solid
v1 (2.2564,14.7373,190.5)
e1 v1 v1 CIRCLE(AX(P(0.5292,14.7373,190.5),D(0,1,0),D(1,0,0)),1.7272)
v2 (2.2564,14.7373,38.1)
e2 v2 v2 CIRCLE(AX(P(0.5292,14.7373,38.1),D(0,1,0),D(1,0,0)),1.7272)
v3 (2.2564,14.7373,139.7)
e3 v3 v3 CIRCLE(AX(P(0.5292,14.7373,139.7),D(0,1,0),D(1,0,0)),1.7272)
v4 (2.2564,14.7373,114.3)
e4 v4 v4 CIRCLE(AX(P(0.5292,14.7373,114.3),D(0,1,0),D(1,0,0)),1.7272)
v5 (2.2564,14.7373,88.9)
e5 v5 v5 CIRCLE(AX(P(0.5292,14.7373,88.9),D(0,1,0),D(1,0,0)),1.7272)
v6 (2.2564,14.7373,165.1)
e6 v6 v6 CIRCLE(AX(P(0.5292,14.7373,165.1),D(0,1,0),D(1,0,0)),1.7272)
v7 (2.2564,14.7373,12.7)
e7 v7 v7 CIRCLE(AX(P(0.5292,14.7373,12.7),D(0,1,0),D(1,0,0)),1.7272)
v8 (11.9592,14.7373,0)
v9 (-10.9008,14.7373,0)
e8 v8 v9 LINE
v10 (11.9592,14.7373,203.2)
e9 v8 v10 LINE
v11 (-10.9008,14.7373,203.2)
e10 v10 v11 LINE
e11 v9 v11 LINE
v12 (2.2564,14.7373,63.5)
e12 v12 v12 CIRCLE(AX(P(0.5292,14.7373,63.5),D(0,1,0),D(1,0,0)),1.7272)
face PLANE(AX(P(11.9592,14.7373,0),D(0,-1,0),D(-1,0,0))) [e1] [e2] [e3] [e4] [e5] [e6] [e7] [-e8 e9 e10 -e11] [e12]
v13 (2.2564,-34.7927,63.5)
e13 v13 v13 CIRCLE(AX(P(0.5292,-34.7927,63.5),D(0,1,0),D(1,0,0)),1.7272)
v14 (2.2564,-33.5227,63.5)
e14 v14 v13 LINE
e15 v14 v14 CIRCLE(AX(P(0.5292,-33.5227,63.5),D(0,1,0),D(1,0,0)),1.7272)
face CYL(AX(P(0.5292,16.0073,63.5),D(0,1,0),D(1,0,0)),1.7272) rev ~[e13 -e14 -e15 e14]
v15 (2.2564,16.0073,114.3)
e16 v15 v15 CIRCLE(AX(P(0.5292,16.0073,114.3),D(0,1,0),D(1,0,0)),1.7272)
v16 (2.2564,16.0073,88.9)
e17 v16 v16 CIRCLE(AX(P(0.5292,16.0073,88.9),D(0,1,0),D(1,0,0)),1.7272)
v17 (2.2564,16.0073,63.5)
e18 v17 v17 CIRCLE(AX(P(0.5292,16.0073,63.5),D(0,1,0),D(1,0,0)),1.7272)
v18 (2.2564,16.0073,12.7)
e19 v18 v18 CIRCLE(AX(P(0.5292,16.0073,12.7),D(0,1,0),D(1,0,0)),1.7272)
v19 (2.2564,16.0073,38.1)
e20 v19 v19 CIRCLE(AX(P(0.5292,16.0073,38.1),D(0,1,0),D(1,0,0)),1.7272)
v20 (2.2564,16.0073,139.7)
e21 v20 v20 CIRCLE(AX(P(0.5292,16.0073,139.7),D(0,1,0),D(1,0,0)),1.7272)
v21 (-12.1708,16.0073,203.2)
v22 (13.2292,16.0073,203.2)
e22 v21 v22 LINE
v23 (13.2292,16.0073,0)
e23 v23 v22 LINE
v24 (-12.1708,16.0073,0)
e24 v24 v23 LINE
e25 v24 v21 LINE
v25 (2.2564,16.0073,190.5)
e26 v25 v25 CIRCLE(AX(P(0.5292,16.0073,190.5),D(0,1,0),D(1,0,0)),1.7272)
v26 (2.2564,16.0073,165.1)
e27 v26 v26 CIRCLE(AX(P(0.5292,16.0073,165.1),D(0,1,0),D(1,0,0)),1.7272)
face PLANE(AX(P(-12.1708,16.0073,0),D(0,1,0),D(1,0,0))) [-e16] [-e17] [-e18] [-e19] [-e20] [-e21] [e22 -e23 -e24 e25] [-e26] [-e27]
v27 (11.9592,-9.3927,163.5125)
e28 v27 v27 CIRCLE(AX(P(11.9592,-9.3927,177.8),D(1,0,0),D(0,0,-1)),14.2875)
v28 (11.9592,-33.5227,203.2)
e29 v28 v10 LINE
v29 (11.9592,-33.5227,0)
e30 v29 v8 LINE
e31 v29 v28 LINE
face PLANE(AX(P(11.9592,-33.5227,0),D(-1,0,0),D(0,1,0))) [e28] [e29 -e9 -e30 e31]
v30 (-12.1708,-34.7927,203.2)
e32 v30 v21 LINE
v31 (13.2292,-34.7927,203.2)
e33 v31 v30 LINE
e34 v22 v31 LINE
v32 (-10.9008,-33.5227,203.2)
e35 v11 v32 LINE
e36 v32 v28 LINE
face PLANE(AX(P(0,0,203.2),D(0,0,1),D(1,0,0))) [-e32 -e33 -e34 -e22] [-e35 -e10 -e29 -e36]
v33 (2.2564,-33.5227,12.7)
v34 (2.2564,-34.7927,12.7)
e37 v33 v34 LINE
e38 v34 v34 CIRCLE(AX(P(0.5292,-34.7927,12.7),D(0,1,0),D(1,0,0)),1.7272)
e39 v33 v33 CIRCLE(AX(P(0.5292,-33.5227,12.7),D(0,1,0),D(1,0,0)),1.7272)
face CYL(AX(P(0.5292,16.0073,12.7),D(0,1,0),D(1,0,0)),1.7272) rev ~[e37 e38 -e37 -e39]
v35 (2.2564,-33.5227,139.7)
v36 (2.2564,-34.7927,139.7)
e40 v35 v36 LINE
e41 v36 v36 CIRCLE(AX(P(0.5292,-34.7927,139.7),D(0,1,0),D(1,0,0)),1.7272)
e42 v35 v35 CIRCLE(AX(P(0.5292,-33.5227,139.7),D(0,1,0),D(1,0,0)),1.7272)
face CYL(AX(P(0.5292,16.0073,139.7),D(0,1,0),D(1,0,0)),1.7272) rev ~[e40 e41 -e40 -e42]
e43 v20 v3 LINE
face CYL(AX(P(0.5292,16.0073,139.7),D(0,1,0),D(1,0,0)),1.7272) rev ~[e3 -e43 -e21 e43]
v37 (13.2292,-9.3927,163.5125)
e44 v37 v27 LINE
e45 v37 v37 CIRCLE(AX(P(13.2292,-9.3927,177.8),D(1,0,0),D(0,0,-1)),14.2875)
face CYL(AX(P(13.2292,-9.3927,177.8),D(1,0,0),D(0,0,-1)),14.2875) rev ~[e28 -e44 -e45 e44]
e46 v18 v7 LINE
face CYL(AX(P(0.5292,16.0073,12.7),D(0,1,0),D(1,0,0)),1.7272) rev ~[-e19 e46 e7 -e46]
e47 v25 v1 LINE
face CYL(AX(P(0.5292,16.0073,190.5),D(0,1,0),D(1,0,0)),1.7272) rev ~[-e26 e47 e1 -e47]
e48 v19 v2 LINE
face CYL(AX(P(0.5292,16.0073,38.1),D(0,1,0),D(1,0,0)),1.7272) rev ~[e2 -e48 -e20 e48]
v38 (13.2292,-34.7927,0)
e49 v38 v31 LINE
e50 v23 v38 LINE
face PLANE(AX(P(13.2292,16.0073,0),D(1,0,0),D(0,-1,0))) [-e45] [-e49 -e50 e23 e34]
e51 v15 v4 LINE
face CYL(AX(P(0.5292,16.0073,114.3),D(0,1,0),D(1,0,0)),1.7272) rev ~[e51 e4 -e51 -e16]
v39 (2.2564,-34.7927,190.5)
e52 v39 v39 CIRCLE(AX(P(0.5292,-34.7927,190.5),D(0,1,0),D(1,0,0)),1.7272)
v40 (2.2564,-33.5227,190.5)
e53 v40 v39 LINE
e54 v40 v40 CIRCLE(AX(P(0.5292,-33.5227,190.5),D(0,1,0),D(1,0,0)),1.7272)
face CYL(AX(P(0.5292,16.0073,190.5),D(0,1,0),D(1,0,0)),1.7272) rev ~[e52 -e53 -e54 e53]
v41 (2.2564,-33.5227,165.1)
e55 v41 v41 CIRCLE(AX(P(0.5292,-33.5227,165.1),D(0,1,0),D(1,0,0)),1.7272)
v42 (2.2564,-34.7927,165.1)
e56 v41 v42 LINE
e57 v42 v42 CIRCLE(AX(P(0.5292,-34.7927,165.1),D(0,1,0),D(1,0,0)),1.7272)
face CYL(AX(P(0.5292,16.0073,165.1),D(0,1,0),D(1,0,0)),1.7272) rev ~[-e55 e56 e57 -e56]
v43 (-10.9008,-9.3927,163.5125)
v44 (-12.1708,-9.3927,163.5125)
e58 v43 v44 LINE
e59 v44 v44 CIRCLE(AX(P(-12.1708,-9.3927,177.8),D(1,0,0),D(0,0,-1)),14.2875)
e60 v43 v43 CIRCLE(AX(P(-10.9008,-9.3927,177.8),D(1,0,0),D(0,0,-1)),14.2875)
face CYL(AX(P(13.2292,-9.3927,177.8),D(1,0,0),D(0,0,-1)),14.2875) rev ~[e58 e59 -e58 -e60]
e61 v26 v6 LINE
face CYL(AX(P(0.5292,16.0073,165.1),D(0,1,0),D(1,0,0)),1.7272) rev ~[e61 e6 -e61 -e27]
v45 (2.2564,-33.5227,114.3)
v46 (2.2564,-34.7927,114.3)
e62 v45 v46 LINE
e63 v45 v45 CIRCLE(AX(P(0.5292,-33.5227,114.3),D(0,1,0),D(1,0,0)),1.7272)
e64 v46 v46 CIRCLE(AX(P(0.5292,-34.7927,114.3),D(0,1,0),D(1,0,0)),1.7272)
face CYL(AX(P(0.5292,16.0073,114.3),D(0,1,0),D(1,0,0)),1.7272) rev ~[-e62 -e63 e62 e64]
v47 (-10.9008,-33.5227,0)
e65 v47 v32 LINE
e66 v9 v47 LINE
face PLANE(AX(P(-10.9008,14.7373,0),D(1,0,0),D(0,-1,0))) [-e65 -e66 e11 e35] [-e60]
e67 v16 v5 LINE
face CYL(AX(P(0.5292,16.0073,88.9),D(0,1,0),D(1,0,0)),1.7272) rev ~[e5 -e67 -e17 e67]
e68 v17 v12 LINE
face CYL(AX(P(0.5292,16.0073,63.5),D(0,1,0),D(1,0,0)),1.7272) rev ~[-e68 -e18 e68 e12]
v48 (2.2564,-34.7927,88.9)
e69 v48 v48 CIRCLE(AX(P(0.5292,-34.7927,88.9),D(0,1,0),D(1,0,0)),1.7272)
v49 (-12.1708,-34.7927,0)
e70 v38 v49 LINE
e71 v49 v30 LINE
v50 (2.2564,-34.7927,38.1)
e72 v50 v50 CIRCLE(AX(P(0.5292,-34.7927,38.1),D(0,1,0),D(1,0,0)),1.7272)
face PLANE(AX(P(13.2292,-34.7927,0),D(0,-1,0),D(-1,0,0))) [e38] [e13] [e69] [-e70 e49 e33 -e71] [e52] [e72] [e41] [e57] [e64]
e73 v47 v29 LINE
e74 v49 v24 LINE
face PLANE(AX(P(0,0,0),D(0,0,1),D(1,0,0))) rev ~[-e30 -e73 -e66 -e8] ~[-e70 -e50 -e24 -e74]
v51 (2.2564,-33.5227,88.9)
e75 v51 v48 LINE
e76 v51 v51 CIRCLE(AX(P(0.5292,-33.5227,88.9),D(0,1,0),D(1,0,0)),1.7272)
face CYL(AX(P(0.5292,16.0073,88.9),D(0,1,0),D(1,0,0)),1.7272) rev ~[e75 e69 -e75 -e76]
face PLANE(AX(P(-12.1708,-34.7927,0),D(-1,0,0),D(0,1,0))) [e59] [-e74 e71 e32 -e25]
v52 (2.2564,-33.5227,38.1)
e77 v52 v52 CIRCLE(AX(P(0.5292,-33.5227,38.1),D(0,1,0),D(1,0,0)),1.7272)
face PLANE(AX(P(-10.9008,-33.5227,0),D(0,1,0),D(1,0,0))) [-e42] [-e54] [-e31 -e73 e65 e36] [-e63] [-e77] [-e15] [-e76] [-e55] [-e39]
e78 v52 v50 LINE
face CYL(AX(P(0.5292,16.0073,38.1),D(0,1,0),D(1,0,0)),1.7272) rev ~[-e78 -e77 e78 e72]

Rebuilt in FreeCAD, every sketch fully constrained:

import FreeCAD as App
import Part
import Sketcher

V = App.Vector
Q = App.Units.Quantity

doc = App.newDocument("Part")
body = doc.addObject("PartDesign::Body", "Body")

# Sketch on XY plane
sketch1 = body.newObject("Sketcher::SketchObject", "Sketch")
sketch1.AttachmentSupport = (doc.getObject("XY_Plane"), [""])
sketch1.MapMode = "FlatFace"
sketch1.addGeometry([
    Part.LineSegment(V(13, 16, 0), V(-12, 16, 0)),  # 0
    Part.LineSegment(V(-12, 16, 0), V(-12, -35, 0)),  # 1
    Part.LineSegment(V(-12, -35, 0), V(13, -35, 0)),  # 2
    Part.LineSegment(V(13, -35, 0), V(13, 16, 0)),  # 3
    Part.LineSegment(V(-11, 15, 0), V(12, 15, 0)),  # 4
    Part.LineSegment(V(12, 15, 0), V(12, -34, 0)),  # 5
    Part.LineSegment(V(12, -34, 0), V(-11, -34, 0)),  # 6
    Part.LineSegment(V(-11, -34, 0), V(-11, 15, 0)),  # 7
], False)
sketch1.addConstraint([
    Sketcher.Constraint("Coincident", 0, 2, 1, 1),
    Sketcher.Constraint("Coincident", 1, 2, 2, 1),
    Sketcher.Constraint("Coincident", 2, 2, 3, 1),
    Sketcher.Constraint("Coincident", 3, 2, 0, 1),
    Sketcher.Constraint("Coincident", 4, 2, 5, 1),
    Sketcher.Constraint("Coincident", 5, 2, 6, 1),
    Sketcher.Constraint("Coincident", 6, 2, 7, 1),
    Sketcher.Constraint("Coincident", 7, 2, 4, 1),
    Sketcher.Constraint("Horizontal", 0),
    Sketcher.Constraint("Vertical", 1),
    Sketcher.Constraint("Horizontal", 2),
    Sketcher.Constraint("Vertical", 3),
    Sketcher.Constraint("Horizontal", 4),
    Sketcher.Constraint("Vertical", 5),
    Sketcher.Constraint("Horizontal", 6),
    Sketcher.Constraint("Vertical", 7),
    Sketcher.Constraint("DistanceX", 0, 2, 0, 1, Q("1 in")),
    Sketcher.Constraint("DistanceY", 1, 2, 1, 1, Q("2 in")),
    Sketcher.Constraint("DistanceX", 4, 2, 3, 2, Q("0.05 in")),
    Sketcher.Constraint("DistanceY", 4, 2, 3, 2, Q("0.05 in")),
    Sketcher.Constraint("DistanceY", 2, 2, 5, 2, Q("0.05 in")),
    Sketcher.Constraint("DistanceX", 1, 2, 6, 2, Q("0.05 in")),
    Sketcher.Constraint("DistanceY", -1, 1, 0, 2, Q("0.6302 in")),
    Sketcher.Constraint("DistanceX", 0, 2, -1, 1, Q("12.1708 mm")),
])
pad1 = body.newObject("PartDesign::Pad", "Pad")
pad1.Profile = sketch1
pad1.Length = Q("8 in")

# Sketch on XZ plane
sketch2 = body.newObject("Sketcher::SketchObject", "Sketch001")
sketch2.AttachmentSupport = (doc.getObject("XZ_Plane"), [""])
sketch2.MapMode = "FlatFace"
sketch2.AttachmentOffset = App.Placement(V(0, 0, -0.6302087 * 25.4), App.Rotation())
sketch2.addGeometry(Part.Circle(V(0.5, 12.7, 0), V(0, 0, 1), 1.7), False)
sketch2.addConstraint([
    Sketcher.Constraint("Diameter", 0, Q("0.136 in")),
    Sketcher.Constraint("DistanceY", -1, 1, 0, 3, Q("0.5 in")),
    Sketcher.Constraint("DistanceX", -1, 1, 0, 3, Q("0.5292 mm")),
])
pocket1 = body.newObject("PartDesign::Pocket", "Pocket")
pocket1.Profile = sketch2
pocket1.Type = "ThroughAll"
pocket1.Reversed = True
doc.recompute()

linearpattern = body.newObject("PartDesign::LinearPattern", "LinearPattern")
linearpattern.Originals = [pocket1]
linearpattern.Direction = (doc.getObject("Z_Axis"), [""])
linearpattern.Mode = "offset"
linearpattern.Offset = Q("1 in")
linearpattern.Occurrences = 11
body.Tip = linearpattern

# Sketch on YZ plane
sketch3 = body.newObject("Sketcher::SketchObject", "Sketch002")
sketch3.AttachmentSupport = (doc.getObject("YZ_Plane"), [""])
sketch3.MapMode = "FlatFace"
sketch3.AttachmentOffset = App.Placement(V(0, 0, 13.2292), App.Rotation())
sketch3.addGeometry(Part.Circle(V(-9, 178, 0), V(0, 0, 1), 14), False)
sketch3.addConstraint([
    Sketcher.Constraint("Diameter", 0, Q("1.125 in")),
    Sketcher.Constraint("DistanceY", -1, 1, 0, 3, Q("7 in")),
    Sketcher.Constraint("DistanceX", 0, 3, -1, 1, Q("0.3698 in")),
])
pocket2 = body.newObject("PartDesign::Pocket", "Pocket001")
pocket2.Profile = sketch3
pocket2.Type = "ThroughAll"

doc.recompute()
